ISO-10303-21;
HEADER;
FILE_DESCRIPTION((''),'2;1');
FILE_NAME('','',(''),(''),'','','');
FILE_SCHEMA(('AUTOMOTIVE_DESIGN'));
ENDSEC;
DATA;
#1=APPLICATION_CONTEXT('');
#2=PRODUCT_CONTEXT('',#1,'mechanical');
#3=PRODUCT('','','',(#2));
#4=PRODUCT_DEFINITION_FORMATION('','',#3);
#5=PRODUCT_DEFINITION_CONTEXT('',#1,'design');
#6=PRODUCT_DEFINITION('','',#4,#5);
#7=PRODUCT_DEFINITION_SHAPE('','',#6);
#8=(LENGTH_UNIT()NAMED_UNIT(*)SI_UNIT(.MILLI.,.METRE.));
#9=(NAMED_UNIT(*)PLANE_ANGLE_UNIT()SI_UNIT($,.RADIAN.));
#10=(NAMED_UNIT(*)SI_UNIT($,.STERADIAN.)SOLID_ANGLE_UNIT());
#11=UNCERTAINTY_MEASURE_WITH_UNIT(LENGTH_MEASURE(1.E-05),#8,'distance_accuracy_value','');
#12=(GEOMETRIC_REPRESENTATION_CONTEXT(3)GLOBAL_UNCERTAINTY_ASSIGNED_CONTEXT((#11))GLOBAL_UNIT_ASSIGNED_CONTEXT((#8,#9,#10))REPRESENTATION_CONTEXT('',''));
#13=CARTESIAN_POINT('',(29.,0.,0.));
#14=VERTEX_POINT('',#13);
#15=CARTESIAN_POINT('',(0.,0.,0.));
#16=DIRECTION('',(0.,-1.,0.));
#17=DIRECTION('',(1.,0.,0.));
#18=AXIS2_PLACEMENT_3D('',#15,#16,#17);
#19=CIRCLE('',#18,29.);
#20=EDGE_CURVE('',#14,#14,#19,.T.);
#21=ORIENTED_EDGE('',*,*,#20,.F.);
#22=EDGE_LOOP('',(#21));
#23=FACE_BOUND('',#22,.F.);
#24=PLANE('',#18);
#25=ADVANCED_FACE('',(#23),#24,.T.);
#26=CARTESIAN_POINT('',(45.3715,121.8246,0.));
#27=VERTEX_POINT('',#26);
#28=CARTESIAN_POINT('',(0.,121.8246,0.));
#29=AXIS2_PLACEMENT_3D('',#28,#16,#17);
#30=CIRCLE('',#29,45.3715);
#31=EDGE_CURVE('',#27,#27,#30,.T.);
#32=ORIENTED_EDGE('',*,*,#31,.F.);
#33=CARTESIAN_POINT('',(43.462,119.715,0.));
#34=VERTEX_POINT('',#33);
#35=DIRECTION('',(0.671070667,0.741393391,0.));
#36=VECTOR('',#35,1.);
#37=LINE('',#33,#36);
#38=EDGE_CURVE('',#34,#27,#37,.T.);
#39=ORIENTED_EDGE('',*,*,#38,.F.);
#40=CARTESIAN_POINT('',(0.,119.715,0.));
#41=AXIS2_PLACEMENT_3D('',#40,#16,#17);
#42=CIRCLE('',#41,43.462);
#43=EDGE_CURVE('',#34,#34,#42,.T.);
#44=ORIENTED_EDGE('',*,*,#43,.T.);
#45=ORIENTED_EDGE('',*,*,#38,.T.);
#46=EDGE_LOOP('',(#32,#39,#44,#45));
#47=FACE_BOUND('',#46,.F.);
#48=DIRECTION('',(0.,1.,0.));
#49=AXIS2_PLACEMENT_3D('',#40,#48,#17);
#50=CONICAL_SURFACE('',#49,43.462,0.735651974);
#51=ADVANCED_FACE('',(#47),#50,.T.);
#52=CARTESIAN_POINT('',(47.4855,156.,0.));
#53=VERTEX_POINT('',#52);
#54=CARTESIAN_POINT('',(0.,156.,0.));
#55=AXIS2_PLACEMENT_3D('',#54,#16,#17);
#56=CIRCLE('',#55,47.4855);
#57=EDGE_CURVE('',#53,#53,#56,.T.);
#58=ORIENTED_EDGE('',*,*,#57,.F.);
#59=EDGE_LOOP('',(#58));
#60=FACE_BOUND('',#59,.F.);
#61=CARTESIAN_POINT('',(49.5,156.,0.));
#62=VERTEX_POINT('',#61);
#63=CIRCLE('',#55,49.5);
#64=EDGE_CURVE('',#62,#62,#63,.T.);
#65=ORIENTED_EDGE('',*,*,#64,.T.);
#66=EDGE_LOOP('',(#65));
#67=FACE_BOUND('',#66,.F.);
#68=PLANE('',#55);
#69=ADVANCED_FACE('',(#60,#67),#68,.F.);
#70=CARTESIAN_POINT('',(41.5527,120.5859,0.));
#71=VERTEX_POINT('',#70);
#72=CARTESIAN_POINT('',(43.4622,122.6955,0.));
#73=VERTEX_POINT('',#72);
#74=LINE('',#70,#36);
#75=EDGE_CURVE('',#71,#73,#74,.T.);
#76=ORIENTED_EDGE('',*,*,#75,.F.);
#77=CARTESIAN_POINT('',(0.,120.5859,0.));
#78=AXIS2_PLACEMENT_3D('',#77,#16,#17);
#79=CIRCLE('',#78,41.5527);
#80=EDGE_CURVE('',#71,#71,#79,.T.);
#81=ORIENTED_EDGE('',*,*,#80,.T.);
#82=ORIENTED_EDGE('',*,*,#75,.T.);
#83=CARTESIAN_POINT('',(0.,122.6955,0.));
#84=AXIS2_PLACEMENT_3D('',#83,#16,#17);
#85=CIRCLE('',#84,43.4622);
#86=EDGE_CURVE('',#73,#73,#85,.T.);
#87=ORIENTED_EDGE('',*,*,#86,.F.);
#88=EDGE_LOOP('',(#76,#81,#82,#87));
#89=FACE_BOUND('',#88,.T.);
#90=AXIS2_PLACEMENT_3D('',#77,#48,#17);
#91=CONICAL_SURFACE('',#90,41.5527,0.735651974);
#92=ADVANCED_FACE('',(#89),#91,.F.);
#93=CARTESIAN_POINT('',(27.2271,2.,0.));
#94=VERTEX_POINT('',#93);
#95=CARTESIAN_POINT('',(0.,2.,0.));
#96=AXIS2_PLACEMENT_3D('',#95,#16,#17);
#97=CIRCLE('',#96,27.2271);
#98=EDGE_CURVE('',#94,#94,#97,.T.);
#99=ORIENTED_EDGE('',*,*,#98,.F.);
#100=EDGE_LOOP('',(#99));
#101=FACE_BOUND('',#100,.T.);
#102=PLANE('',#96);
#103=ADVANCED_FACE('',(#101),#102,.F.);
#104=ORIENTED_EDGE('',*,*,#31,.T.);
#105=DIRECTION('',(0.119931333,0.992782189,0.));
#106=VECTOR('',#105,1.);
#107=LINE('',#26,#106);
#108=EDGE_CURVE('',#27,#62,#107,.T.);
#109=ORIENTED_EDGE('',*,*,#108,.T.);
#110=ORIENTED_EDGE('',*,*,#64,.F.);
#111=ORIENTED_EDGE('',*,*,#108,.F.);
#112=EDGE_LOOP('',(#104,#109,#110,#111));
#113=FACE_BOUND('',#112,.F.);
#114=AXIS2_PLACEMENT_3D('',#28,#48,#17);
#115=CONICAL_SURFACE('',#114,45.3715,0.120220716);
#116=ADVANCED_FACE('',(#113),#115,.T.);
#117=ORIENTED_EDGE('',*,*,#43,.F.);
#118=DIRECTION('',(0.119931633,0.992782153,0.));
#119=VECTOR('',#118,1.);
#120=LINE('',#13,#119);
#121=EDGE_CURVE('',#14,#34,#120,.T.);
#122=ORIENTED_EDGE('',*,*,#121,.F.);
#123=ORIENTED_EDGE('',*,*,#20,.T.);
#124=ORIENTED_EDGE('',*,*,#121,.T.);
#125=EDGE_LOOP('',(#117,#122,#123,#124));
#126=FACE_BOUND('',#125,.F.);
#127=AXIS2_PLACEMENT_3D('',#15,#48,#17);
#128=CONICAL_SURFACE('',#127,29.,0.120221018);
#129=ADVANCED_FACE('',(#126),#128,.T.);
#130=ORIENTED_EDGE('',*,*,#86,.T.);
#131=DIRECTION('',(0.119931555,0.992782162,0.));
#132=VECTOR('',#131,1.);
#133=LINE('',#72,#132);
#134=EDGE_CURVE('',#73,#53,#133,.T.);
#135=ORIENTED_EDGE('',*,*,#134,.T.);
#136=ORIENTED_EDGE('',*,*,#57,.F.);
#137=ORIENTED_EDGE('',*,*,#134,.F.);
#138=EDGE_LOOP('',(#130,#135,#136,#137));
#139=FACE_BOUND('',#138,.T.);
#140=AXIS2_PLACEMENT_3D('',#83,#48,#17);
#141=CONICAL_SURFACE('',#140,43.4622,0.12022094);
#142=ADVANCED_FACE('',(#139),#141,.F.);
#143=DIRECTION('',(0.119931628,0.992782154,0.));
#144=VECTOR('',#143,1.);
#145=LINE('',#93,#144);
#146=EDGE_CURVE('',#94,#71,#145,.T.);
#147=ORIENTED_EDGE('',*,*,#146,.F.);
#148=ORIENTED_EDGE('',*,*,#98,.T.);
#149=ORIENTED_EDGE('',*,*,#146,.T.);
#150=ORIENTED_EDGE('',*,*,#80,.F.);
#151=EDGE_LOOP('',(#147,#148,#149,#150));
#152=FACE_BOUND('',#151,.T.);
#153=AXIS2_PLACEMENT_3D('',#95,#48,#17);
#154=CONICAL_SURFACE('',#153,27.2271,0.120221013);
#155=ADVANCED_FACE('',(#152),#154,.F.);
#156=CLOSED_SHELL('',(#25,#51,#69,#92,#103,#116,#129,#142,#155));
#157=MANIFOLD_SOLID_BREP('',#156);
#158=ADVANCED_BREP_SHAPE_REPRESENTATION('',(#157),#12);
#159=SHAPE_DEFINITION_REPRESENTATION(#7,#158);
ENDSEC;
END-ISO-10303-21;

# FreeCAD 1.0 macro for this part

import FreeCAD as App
import Part
import Sketcher
from FreeCAD import Vector
Q = App.Units.Quantity

doc = App.newDocument("Part")
params = doc.addObject("Spreadsheet::Sheet", "Params")
for row, (alias, value) in enumerate([
    ("sketch1_width", "29 mm"),
    ("sketch1_height", "2 mm"),
    ("revolution_angle", "360 deg"),
], start=1):
    params.set(f"A{row}", alias)
    params.set(f"B{row}", "=" + value)
    params.setAlias(f"B{row}", alias)

body = doc.addObject("PartDesign::Body", "Body")

# Sketch on XY plane
sketch1 = doc.addObject("Sketcher::SketchObject", "Sketch")
body.addObject(sketch1)
sketch1.AttachmentSupport = (doc.XY_Plane, [""])
sketch1.MapMode = "FlatFace"
sketch1.addGeometry([
    Part.LineSegment(Vector(0, 2, 0), Vector(0, 0, 0)),  # 0
    Part.LineSegment(Vector(0, 0, 0), Vector(29, 0, 0)),  # 1
    Part.LineSegment(Vector(29, 0, 0), Vector(43.5, 119.7, 0)),  # 2
    Part.LineSegment(Vector(43.5, 119.7, 0), Vector(45.4, 121.8, 0)),  # 3
    Part.LineSegment(Vector(45.4, 121.8, 0), Vector(49.5, 156, 0)),  # 4
    Part.LineSegment(Vector(49.5, 156, 0), Vector(47.5, 156, 0)),  # 5
    Part.LineSegment(Vector(47.5, 156, 0), Vector(43.5, 122.7, 0)),  # 6
    Part.LineSegment(Vector(43.5, 122.7, 0), Vector(41.6, 120.6, 0)),  # 7
    Part.LineSegment(Vector(41.6, 120.6, 0), Vector(27.2, 2, 0)),  # 8
    Part.LineSegment(Vector(27.2, 2, 0), Vector(0, 2, 0)),  # 9
], False)
sketch1.addConstraint([
    Sketcher.Constraint("Coincident", 0, 2, 1, 1),
    Sketcher.Constraint("Coincident", 1, 2, 2, 1),
    Sketcher.Constraint("Coincident", 2, 2, 3, 1),
    Sketcher.Constraint("Coincident", 3, 2, 4, 1),
    Sketcher.Constraint("Coincident", 4, 2, 5, 1),
    Sketcher.Constraint("Coincident", 5, 2, 6, 1),
    Sketcher.Constraint("Coincident", 6, 2, 7, 1),
    Sketcher.Constraint("Coincident", 7, 2, 8, 1),
    Sketcher.Constraint("Coincident", 8, 2, 9, 1),
    Sketcher.Constraint("Coincident", 9, 2, 0, 1),
    Sketcher.Constraint("Vertical", 0),
    Sketcher.Constraint("Horizontal", 1),
    Sketcher.Constraint("Horizontal", 5),
    Sketcher.Constraint("Horizontal", 9),
    Sketcher.Constraint("Coincident", 0, 2, -1, 1),
    Sketcher.Constraint("Parallel", 2, 4),
    Sketcher.Constraint("Parallel", 4, 6),
    Sketcher.Constraint("Parallel", 3, 7),
    Sketcher.Constraint("Parallel", 6, 8),
    Sketcher.Constraint("Vertical", 2, 2, 6, 2),
    Sketcher.Constraint("Equal", 3, 7),
    Sketcher.Constraint("DistanceX", 1, 1, 1, 2, 29.0),
    Sketcher.Constraint("DistanceY", 0, 2, 0, 1, 2.0),
    Sketcher.Constraint("DistanceY", -1, 1, 4, 2, 156.0),
    Sketcher.Constraint("DistanceX", -1, 1, 4, 2, 49.5),
    Sketcher.Constraint("Angle", 3, Q("47.8502 deg")),
    Sketcher.Constraint("DistanceX", 9, 2, 9, 1, 27.227),
    Sketcher.Constraint("Distance", 8, 119.448),
    Sketcher.Constraint("DistanceX", -1, 1, 2, 2, 43.462),
])
sketch1.setExpression("Constraints[21]", "Params.sketch1_width")
sketch1.setExpression("Constraints[22]", "Params.sketch1_height")
revolution = doc.addObject("PartDesign::Revolution", "Revolution")
body.addObject(revolution)
revolution.Profile = sketch1
revolution.ReferenceAxis = (sketch1, ["V_Axis"])
revolution.setExpression("Angle", "Params.revolution_angle")

doc.recompute()
